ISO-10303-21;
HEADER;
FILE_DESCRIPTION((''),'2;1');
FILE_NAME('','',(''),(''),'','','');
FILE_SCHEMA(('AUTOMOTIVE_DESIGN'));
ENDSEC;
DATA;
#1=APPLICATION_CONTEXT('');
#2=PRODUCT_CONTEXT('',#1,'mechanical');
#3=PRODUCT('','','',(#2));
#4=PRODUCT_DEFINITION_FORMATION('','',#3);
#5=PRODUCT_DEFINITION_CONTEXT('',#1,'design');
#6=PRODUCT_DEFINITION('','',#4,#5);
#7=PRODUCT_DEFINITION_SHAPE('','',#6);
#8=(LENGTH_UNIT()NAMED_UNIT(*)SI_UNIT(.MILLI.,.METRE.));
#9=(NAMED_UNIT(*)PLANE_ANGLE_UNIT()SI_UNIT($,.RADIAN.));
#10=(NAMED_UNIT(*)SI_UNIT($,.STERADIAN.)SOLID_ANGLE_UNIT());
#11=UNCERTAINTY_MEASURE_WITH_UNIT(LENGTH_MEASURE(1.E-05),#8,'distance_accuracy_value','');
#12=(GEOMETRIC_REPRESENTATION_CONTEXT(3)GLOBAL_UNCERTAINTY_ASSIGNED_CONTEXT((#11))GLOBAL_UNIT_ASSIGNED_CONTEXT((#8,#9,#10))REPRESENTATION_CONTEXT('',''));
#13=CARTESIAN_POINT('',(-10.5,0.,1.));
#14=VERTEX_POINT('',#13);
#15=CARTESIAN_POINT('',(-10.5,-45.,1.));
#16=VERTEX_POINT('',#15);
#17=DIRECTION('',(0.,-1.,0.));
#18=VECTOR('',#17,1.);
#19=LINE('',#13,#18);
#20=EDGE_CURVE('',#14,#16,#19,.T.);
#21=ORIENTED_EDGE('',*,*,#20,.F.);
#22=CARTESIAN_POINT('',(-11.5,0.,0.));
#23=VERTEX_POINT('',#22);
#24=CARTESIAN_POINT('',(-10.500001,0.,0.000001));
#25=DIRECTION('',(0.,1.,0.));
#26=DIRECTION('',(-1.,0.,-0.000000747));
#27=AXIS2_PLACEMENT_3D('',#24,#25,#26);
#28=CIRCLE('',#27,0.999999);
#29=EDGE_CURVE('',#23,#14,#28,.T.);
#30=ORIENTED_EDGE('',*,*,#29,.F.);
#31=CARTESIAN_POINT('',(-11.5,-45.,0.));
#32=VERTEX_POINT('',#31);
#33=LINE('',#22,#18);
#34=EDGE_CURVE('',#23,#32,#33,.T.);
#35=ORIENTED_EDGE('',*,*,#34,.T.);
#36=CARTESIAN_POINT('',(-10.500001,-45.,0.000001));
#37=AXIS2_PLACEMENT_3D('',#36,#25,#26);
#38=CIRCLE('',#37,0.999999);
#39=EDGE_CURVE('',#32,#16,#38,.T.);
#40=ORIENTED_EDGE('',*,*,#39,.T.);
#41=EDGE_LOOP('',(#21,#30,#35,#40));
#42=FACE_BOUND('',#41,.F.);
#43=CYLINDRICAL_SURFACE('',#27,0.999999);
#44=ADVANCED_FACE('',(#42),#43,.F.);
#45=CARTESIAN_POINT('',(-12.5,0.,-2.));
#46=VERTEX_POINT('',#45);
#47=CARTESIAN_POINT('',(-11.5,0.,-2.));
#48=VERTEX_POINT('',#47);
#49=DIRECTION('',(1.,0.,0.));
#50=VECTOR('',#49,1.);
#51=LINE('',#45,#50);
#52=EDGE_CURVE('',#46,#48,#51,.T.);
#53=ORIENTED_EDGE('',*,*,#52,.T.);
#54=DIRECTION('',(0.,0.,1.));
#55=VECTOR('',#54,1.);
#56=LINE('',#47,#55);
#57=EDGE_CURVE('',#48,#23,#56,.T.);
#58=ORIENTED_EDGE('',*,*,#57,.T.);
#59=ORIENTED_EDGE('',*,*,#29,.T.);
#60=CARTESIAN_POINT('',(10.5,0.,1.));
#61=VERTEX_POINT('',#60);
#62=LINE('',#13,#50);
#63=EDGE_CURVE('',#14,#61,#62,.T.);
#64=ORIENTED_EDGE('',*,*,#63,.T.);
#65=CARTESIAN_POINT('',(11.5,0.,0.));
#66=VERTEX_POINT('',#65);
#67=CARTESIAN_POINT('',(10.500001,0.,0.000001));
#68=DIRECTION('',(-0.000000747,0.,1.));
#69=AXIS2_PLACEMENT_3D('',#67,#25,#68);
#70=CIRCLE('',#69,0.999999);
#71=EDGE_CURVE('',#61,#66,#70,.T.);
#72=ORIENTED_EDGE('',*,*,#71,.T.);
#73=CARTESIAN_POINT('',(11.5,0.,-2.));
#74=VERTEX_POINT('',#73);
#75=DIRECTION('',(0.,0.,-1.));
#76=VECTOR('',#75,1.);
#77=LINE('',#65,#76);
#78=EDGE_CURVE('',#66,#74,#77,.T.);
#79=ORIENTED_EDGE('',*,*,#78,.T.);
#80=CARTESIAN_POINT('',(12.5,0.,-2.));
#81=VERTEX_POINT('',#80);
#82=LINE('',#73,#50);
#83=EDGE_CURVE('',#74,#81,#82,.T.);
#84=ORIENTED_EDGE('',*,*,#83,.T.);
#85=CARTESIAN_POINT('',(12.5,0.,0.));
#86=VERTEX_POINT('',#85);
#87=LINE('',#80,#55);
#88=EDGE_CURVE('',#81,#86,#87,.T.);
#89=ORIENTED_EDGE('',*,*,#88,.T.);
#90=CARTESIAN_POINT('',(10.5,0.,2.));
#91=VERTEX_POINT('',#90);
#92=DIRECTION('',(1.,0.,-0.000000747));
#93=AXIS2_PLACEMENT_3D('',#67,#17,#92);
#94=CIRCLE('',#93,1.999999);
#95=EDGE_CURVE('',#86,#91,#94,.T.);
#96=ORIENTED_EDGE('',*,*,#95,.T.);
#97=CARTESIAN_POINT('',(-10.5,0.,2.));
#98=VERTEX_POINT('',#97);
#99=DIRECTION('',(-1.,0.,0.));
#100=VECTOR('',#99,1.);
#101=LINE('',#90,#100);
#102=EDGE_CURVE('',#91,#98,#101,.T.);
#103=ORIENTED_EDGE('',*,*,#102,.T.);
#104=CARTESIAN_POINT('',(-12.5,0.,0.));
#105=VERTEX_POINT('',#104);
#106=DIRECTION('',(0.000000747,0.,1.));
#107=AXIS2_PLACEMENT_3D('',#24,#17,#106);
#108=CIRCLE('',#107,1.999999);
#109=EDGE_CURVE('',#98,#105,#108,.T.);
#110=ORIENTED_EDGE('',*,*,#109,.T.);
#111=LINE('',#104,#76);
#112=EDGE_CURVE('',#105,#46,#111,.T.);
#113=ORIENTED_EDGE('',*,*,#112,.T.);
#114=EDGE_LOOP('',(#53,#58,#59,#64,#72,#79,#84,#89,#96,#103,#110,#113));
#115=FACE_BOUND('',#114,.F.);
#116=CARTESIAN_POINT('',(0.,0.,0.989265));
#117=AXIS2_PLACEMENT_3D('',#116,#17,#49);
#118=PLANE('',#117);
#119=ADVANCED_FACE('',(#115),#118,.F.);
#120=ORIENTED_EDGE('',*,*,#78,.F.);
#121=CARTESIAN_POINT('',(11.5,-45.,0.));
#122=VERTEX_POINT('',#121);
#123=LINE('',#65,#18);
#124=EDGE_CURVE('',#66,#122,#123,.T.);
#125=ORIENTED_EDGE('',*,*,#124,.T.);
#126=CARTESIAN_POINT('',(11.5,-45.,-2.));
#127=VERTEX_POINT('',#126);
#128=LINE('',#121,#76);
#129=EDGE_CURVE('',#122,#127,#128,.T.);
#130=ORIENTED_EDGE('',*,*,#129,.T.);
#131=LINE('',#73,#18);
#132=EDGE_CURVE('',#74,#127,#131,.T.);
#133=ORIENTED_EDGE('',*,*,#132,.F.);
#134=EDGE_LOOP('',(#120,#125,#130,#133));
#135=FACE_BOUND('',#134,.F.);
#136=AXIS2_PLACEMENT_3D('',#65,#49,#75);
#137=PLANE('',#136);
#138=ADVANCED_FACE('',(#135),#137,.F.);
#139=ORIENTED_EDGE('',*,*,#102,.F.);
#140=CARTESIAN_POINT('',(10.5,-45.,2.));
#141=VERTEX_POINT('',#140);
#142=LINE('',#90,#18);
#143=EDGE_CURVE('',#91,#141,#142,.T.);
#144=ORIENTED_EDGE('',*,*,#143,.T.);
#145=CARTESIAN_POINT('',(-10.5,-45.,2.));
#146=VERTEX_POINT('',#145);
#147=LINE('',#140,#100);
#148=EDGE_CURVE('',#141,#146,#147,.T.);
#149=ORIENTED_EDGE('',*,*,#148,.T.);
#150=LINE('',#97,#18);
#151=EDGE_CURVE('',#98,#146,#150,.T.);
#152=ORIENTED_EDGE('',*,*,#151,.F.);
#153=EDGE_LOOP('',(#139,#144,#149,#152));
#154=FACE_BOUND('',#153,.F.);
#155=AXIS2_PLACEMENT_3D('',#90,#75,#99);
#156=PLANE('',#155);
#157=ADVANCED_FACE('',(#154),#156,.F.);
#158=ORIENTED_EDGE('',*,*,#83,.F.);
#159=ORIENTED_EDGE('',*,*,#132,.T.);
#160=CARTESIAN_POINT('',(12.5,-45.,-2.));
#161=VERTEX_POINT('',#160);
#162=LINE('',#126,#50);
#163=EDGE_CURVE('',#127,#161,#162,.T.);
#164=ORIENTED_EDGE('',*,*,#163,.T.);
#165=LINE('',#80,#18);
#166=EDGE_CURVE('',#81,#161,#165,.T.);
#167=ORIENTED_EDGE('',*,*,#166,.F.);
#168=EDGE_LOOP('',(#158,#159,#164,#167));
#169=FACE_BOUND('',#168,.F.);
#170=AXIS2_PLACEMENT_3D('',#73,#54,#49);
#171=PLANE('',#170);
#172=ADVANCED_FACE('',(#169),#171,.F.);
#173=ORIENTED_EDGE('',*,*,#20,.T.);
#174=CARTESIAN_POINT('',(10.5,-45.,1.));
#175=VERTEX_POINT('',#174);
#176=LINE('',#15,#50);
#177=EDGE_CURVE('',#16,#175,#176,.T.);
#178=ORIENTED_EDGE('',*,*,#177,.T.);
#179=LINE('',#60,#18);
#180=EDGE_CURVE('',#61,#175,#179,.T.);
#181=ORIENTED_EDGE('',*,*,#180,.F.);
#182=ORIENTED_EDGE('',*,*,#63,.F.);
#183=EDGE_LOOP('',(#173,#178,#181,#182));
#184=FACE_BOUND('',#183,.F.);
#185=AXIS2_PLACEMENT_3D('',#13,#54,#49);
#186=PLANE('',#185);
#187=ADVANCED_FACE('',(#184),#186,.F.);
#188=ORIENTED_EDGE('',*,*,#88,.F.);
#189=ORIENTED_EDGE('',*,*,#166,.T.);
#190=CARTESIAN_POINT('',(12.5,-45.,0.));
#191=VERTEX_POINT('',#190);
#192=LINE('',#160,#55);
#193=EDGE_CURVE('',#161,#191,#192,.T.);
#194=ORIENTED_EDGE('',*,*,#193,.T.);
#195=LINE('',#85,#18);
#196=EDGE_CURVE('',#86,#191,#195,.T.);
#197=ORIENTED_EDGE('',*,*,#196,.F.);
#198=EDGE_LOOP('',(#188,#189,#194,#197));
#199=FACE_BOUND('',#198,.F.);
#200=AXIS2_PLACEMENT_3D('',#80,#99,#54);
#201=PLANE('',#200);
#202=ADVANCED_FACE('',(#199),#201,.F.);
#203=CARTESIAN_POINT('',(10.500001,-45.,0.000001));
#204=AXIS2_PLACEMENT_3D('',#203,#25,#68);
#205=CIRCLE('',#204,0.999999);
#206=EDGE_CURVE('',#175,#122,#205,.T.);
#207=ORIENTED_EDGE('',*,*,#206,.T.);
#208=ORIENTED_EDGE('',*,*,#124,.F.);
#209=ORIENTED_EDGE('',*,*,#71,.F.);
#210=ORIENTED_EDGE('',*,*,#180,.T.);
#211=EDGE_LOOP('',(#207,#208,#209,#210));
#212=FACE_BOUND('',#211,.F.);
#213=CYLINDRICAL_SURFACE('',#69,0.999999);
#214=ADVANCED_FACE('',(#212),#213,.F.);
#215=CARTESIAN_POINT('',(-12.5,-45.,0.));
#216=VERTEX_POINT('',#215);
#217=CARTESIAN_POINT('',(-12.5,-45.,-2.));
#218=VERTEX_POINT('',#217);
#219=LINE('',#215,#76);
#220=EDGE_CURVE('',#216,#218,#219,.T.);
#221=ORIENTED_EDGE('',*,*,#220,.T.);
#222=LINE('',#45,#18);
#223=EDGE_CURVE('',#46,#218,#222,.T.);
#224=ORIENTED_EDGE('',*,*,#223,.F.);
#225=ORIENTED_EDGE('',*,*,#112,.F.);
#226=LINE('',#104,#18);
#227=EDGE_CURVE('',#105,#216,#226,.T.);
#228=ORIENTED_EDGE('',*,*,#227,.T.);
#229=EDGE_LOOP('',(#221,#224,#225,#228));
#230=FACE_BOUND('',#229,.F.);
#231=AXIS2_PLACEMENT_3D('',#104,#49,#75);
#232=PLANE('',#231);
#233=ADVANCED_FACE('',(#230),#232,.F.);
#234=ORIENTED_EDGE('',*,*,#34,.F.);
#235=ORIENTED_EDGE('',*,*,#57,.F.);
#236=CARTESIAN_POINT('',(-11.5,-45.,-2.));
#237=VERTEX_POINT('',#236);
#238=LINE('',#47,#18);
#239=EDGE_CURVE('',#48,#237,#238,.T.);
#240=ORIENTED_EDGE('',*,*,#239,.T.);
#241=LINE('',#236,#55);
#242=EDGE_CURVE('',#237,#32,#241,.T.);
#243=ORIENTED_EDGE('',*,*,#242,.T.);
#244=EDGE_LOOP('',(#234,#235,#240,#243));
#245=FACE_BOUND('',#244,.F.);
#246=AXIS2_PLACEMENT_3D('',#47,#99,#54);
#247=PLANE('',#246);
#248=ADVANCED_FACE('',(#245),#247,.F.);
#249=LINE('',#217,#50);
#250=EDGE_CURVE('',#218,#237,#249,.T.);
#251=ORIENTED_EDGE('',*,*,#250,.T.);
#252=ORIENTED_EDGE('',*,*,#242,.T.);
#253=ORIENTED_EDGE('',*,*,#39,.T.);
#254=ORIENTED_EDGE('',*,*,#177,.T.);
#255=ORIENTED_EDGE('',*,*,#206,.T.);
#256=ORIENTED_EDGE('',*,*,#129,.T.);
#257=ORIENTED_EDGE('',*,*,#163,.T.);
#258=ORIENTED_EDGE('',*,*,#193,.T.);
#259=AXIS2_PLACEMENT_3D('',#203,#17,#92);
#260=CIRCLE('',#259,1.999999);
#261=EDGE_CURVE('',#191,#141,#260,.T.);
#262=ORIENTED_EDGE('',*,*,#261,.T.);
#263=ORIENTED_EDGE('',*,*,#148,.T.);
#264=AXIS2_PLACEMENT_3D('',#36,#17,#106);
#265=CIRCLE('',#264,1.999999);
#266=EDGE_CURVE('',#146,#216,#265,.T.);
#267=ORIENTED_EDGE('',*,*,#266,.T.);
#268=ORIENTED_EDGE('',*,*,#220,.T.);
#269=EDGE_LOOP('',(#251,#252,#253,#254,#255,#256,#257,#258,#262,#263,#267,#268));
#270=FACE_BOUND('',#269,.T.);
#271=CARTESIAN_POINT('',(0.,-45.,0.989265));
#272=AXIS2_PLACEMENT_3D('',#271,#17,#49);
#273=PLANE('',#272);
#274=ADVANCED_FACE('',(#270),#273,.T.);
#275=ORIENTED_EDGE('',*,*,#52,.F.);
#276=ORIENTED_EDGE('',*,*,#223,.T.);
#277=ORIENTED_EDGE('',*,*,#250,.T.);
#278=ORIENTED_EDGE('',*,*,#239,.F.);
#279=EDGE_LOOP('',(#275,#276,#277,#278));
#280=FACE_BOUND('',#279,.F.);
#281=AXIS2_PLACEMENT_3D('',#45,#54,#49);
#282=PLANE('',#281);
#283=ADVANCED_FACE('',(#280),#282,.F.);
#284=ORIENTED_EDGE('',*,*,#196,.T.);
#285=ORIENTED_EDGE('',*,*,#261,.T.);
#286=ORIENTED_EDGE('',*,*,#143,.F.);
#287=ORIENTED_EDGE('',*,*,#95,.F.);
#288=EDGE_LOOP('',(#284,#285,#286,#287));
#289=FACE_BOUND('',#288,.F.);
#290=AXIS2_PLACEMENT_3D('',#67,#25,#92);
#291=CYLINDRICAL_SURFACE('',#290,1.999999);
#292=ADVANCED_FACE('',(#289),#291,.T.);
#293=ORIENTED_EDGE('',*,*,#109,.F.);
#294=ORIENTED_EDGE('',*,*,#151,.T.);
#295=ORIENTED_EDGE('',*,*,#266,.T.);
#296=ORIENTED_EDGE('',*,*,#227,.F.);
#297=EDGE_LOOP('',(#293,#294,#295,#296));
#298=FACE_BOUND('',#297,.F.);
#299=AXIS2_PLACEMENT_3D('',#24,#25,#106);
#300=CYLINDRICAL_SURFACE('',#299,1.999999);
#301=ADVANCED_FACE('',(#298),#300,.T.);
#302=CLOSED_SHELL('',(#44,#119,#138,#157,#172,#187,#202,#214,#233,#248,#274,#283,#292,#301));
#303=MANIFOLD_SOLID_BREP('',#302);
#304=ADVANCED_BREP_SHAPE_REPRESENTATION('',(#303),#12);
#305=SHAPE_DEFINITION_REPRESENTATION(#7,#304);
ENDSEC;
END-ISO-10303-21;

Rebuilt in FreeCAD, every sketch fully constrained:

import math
import FreeCAD as App
import Part
import Sketcher

V = App.Vector

doc = App.newDocument("Part")
params = doc.addObject("Spreadsheet::Sheet", "Params")
for row, (alias, value) in enumerate([
    ("sketch1_radius", "1.999999 mm"),
    ("sketch1_radius2", "0.999999 mm"),
    ("sketch1_width", "21 mm"),
    ("sketch1_height", "2 mm"),
    ("pad1_length", "45 mm"),
], start=1):
    params.set(f"A{row}", alias)
    params.set(f"B{row}", "=" + value)
    params.setAlias(f"B{row}", alias)

body = doc.addObject("PartDesign::Body", "Body")

# Sketch on XZ plane
sketch1 = doc.addObject("Sketcher::SketchObject", "Sketch")
body.addObject(sketch1)
sketch1.AttachmentSupport = (doc.XZ_Plane, [""])
sketch1.MapMode = "FlatFace"
sketch1.addGeometry([
    Part.ArcOfCircle(Part.Circle(V(10.5, 0, 0), V(0, 0, 1), 2), math.radians(0), math.radians(90)),  # 0
    Part.LineSegment(V(10.5, 2, 0), V(-10.5, 2, 0)),  # 1
    Part.ArcOfCircle(Part.Circle(V(-10.5, 0, 0), V(0, 0, 1), 2), math.radians(90), math.radians(180)),  # 2
    Part.LineSegment(V(-12.5, 0, 0), V(-12.5, -2, 0)),  # 3
    Part.LineSegment(V(-12.5, -2, 0), V(-11.5, -2, 0)),  # 4
    Part.LineSegment(V(-11.5, -2, 0), V(-11.5, 0, 0)),  # 5
    Part.ArcOfCircle(Part.Circle(V(-10.5, 0, 0), V(0, 0, 1), 1), math.radians(90), math.radians(180)),  # 6
    Part.LineSegment(V(-10.5, 1, 0), V(10.5, 1, 0)),  # 7
    Part.ArcOfCircle(Part.Circle(V(10.5, 0, 0), V(0, 0, 1), 1), math.radians(0), math.radians(90)),  # 8
    Part.LineSegment(V(11.5, 0, 0), V(11.5, -2, 0)),  # 9
    Part.LineSegment(V(11.5, -2, 0), V(12.5, -2, 0)),  # 10
    Part.LineSegment(V(12.5, -2, 0), V(12.5, 0, 0)),  # 11
], False)
sketch1.addConstraint([
    Sketcher.Constraint("Tangent", 0, 2, 1, 1),
    Sketcher.Constraint("Tangent", 1, 2, 2, 1),
    Sketcher.Constraint("Tangent", 2, 2, 3, 1),
    Sketcher.Constraint("Coincident", 3, 2, 4, 1),
    Sketcher.Constraint("Coincident", 4, 2, 5, 1),
    Sketcher.Constraint("Tangent", 5, 2, 6, 2),
    Sketcher.Constraint("Tangent", 6, 1, 7, 1),
    Sketcher.Constraint("Tangent", 7, 2, 8, 2),
    Sketcher.Constraint("Tangent", 8, 1, 9, 1),
    Sketcher.Constraint("Coincident", 9, 2, 10, 1),
    Sketcher.Constraint("Coincident", 10, 2, 11, 1),
    Sketcher.Constraint("Tangent", 11, 2, 0, 1),
    Sketcher.Constraint("Horizontal", 1),
    Sketcher.Constraint("Vertical", 3),
    Sketcher.Constraint("Horizontal", 4),
    Sketcher.Constraint("Vertical", 5),
    Sketcher.Constraint("Horizontal", 7),
    Sketcher.Constraint("Vertical", 9),
    Sketcher.Constraint("Horizontal", 10),
    Sketcher.Constraint("Vertical", 11),
    Sketcher.Constraint("Coincident", 6, 3, 2, 3),
    Sketcher.Constraint("Coincident", 8, 3, 0, 3),
    Sketcher.Constraint("Equal", 0, 2),
    Sketcher.Constraint("Symmetric", 0, 3, 2, 3, -1, 1),
    Sketcher.Constraint("Horizontal", 4, 2, 9, 2),
    Sketcher.Constraint("Radius", 0, 1.999999),
    Sketcher.Constraint("Radius", 6, 0.999999),
    Sketcher.Constraint("DistanceX", 1, 2, 1, 1, 21.0),
    Sketcher.Constraint("DistanceY", 3, 2, 3, 1, 2.0),
])
sketch1.setExpression("Constraints[25]", "Params.sketch1_radius")
sketch1.setExpression("Constraints[26]", "Params.sketch1_radius2")
sketch1.setExpression("Constraints[27]", "Params.sketch1_width")
sketch1.setExpression("Constraints[28]", "Params.sketch1_height")
pad1 = doc.addObject("PartDesign::Pad", "Pad")
body.addObject(pad1)
pad1.Profile = sketch1
pad1.setExpression("Length", "Params.pad1_length")

doc.recompute()
